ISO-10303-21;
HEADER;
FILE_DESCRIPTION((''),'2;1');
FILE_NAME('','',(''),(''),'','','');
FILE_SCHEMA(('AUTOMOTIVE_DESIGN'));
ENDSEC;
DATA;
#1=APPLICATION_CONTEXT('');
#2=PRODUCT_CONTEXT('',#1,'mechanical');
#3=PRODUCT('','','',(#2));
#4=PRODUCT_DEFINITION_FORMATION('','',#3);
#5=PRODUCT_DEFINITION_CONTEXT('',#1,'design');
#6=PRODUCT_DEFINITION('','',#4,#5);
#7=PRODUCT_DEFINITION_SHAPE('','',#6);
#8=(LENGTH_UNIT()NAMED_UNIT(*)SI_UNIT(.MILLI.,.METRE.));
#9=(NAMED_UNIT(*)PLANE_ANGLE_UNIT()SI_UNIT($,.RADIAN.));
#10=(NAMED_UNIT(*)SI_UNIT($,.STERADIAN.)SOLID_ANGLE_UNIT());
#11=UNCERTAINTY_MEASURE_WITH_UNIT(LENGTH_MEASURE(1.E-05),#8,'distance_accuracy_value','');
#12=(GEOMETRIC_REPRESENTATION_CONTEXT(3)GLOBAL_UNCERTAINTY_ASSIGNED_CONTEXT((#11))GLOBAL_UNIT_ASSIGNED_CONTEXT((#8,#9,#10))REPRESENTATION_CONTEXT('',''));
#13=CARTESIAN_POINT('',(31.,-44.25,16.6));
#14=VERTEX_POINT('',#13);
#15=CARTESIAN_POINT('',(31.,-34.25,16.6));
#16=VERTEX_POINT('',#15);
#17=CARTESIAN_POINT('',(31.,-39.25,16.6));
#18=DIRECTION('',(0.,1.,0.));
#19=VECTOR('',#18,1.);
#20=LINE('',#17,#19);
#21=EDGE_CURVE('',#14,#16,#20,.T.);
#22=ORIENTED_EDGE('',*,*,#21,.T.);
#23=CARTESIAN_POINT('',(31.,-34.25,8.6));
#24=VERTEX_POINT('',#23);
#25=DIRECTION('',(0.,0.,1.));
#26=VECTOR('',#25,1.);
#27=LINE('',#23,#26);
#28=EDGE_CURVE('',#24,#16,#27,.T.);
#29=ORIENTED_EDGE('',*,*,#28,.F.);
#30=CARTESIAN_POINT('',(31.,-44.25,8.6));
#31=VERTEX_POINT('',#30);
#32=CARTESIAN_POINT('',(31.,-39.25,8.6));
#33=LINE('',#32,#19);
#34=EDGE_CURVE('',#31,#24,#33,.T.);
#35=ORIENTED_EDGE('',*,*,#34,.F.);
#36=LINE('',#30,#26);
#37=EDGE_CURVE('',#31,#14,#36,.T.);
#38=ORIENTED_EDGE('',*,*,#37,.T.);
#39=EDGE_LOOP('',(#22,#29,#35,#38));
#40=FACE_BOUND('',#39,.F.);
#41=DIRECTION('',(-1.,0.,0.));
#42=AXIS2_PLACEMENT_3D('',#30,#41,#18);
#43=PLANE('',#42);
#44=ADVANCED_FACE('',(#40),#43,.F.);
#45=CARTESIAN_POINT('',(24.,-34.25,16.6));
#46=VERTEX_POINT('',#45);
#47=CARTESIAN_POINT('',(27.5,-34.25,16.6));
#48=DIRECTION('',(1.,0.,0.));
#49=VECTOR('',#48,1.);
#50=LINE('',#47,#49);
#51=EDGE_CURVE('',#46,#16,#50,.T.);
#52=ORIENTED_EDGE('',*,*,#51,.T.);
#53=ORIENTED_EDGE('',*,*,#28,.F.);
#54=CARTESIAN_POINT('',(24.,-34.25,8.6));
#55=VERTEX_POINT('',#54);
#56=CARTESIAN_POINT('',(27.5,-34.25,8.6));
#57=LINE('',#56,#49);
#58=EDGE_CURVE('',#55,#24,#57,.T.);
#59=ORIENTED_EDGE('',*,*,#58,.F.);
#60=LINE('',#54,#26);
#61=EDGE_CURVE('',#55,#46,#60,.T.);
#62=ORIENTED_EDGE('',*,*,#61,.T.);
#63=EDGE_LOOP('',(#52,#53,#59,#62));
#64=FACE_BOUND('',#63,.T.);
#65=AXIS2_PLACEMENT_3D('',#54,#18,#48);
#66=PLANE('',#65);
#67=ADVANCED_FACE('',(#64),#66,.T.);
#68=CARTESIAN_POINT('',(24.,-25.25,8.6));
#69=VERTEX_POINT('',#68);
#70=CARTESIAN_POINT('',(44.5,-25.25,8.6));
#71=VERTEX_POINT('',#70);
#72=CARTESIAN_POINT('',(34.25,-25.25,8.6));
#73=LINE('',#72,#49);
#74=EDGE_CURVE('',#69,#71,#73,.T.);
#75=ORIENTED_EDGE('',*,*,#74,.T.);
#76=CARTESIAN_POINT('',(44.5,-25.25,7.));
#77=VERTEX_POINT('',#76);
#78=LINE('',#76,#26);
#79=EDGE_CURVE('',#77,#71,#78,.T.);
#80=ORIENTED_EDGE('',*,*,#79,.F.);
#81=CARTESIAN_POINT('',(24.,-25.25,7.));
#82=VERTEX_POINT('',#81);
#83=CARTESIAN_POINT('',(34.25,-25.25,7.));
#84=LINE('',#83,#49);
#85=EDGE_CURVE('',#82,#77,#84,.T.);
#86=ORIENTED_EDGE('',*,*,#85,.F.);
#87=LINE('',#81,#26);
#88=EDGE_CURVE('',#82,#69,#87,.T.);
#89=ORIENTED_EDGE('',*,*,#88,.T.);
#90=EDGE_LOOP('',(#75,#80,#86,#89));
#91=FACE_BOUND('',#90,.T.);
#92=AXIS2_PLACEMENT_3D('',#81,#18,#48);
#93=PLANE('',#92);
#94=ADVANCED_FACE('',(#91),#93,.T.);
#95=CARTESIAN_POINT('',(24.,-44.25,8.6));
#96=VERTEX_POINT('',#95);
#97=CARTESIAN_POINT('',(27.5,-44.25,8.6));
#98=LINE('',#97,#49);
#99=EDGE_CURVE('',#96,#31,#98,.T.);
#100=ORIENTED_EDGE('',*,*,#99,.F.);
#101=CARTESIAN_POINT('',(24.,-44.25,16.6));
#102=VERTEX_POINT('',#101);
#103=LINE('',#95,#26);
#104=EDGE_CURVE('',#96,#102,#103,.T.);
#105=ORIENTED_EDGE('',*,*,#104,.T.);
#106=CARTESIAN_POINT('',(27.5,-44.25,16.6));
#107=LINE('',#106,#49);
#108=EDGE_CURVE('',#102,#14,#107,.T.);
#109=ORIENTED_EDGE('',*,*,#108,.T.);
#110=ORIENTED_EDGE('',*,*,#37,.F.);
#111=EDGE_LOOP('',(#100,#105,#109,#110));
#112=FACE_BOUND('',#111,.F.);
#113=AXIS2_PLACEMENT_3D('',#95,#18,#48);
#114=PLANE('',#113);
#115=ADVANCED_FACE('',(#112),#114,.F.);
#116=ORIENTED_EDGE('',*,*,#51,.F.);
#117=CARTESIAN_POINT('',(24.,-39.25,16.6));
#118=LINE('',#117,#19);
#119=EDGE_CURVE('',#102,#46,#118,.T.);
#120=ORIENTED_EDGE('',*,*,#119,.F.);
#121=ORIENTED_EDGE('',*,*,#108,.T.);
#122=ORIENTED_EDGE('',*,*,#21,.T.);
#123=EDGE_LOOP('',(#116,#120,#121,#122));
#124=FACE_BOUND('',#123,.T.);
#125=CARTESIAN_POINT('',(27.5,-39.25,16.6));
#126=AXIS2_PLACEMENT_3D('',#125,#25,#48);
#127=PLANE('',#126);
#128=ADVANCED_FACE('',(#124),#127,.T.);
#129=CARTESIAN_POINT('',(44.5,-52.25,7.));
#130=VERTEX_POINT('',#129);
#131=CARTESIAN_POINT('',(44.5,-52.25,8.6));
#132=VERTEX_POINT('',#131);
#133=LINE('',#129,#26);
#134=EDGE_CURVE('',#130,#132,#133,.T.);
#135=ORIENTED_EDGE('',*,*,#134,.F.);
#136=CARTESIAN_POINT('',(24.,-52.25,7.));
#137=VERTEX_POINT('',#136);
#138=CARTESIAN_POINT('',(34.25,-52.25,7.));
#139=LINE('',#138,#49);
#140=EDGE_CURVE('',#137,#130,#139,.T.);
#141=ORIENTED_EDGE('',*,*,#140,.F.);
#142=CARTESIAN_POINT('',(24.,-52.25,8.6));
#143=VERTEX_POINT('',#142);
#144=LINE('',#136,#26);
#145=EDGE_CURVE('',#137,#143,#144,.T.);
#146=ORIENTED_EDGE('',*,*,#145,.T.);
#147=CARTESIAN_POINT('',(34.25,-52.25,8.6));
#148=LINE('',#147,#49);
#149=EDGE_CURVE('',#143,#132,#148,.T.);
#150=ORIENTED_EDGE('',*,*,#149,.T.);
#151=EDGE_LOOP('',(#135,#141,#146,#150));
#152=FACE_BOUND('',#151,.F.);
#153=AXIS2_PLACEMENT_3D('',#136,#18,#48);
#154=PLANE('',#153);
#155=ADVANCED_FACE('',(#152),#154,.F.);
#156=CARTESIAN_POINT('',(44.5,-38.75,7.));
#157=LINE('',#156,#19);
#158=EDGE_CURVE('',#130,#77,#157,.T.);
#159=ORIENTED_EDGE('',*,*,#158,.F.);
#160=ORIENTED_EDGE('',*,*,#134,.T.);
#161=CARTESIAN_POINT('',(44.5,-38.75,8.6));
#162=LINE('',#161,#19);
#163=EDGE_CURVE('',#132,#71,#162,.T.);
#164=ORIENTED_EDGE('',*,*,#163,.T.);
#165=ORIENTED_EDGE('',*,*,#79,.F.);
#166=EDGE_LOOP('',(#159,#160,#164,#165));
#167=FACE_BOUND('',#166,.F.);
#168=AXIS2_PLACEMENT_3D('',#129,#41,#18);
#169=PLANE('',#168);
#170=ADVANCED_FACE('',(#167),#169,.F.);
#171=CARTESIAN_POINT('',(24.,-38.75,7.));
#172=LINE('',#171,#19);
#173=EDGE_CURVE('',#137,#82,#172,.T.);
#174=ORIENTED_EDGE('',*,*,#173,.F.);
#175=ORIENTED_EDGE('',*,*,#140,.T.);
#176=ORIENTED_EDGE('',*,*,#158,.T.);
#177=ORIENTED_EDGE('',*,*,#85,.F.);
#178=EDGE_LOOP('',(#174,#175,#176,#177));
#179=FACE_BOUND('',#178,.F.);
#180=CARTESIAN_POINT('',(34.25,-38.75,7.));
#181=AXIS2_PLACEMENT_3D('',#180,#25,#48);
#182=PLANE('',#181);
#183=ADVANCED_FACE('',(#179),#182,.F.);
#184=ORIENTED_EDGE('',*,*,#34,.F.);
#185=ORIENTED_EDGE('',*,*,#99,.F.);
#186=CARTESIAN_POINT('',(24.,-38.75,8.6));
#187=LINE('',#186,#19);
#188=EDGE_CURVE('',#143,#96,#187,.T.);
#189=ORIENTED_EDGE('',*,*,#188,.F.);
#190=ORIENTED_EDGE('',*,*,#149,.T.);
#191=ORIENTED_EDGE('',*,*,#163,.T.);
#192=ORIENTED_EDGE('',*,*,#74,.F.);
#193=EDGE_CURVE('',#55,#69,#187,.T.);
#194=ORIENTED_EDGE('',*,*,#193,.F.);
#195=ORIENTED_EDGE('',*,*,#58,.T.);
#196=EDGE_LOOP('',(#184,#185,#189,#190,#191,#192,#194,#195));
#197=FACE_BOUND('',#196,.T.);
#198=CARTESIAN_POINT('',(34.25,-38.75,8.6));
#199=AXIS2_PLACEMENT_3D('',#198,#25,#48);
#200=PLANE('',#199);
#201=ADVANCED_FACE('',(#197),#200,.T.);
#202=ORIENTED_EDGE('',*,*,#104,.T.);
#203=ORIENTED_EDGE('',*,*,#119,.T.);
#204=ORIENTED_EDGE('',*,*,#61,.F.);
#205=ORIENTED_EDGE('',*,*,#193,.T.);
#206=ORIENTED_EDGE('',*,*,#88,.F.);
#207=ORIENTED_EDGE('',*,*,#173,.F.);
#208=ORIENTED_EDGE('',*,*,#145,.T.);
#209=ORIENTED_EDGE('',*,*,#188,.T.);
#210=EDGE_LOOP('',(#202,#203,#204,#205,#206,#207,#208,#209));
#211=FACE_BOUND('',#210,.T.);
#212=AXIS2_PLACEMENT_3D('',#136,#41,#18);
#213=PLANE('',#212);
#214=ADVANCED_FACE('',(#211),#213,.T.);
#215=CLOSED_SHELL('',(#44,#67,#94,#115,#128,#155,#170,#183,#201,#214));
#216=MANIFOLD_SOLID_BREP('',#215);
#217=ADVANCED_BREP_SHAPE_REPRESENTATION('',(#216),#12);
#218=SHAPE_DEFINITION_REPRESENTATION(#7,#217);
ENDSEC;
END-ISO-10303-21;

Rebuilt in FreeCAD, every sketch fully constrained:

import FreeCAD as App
import Part
import Sketcher
Q = App.Units.Quantity

doc = App.newDocument("Part")
body = doc.addObject("PartDesign::Body", "Body")

sketch1 = doc.addObject("Sketcher::SketchObject", "Sketch")
body.addObject(sketch1)
sketch1.AttachmentSupport = (doc.XY_Plane, [""])
sketch1.MapMode = "FlatFace"
sketch1.AttachmentOffset = App.Placement(App.Vector(0, 0, 1.6), App.Rotation())
sketch1.addGeometry(Part.LineSegment(App.Vector(0, 18, 0), App.Vector(0, 8, 0)), False)
sketch1.addGeometry(Part.LineSegment(App.Vector(0, 8, 0), App.Vector(7, 8, 0)), False)
sketch1.addGeometry(Part.LineSegment(App.Vector(7, 8, 0), App.Vector(7, 18, 0)), False)
sketch1.addGeometry(Part.LineSegment(App.Vector(7, 18, 0), App.Vector(0, 18, 0)), False)
sketch1.addConstraint(Sketcher.Constraint("Coincident", 0, 2, 1, 1))
sketch1.addConstraint(Sketcher.Constraint("Coincident", 1, 2, 2, 1))
sketch1.addConstraint(Sketcher.Constraint("Coincident", 2, 2, 3, 1))
sketch1.addConstraint(Sketcher.Constraint("Coincident", 3, 2, 0, 1))
sketch1.addConstraint(Sketcher.Constraint("Vertical", 0))
sketch1.addConstraint(Sketcher.Constraint("Horizontal", 1))
sketch1.addConstraint(Sketcher.Constraint("Vertical", 2))
sketch1.addConstraint(Sketcher.Constraint("Horizontal", 3))
sketch1.addConstraint(Sketcher.Constraint("PointOnObject", 0, 2, -2))
sketch1.addConstraint(Sketcher.Constraint("DistanceX", 1, 1, 1, 2, Q("7 mm")))
sketch1.addConstraint(Sketcher.Constraint("DistanceY", 0, 2, 0, 1, Q("10 mm")))
sketch1.addConstraint(Sketcher.Constraint("DistanceY", -1, 1, 0, 2, Q("8 mm")))
pad1 = doc.addObject("PartDesign::Pad", "Pad")
body.addObject(pad1)
pad1.Profile = sketch1
pad1.Length = 8
body2 = doc.addObject("PartDesign::Body", "Body001")

sketch2 = doc.addObject("Sketcher::SketchObject", "Sketch001")
body2.addObject(sketch2)
sketch2.AttachmentSupport = (doc.getObject("XY_Plane001"), [""])
sketch2.MapMode = "FlatFace"
sketch2.addGeometry(Part.LineSegment(App.Vector(0, 27, 0), App.Vector(0, 0, 0)), False)
sketch2.addGeometry(Part.LineSegment(App.Vector(0, 0, 0), App.Vector(20, 0, 0)), False)
sketch2.addGeometry(Part.LineSegment(App.Vector(20, 0, 0), App.Vector(20, 27, 0)), False)
sketch2.addGeometry(Part.LineSegment(App.Vector(20, 27, 0), App.Vector(0, 27, 0)), False)
sketch2.addConstraint(Sketcher.Constraint("Coincident", 0, 2, 1, 1))
sketch2.addConstraint(Sketcher.Constraint("Coincident", 1, 2, 2, 1))
sketch2.addConstraint(Sketcher.Constraint("Coincident", 2, 2, 3, 1))
sketch2.addConstraint(Sketcher.Constraint("Coincident", 3, 2, 0, 1))
sketch2.addConstraint(Sketcher.Constraint("Vertical", 0))
sketch2.addConstraint(Sketcher.Constraint("Horizontal", 1))
sketch2.addConstraint(Sketcher.Constraint("Vertical", 2))
sketch2.addConstraint(Sketcher.Constraint("Horizontal", 3))
sketch2.addConstraint(Sketcher.Constraint("Coincident", 0, 2, -1, 1))
sketch2.addConstraint(Sketcher.Constraint("DistanceY", 0, 2, 0, 1, Q("27 mm")))
sketch2.addConstraint(Sketcher.Constraint("DistanceX", 1, 1, 1, 2, Q("20.5 mm")))
pad2 = doc.addObject("PartDesign::Pad", "Pad001")
body2.addObject(pad2)
pad2.Profile = sketch2
pad2.Length = 1.6
doc.recompute()

boolean = doc.addObject("PartDesign::Boolean", "Boolean")
body2.addObject(boolean)
boolean.Type = "Fuse"
boolean.addObjects([body])
body3 = doc.addObject("PartDesign::Body", "Body002")
doc.recompute()

body2.Placement = App.Placement(App.Vector(24, -52.25, 7), App.Rotation(App.Vector(0, 0, 1), 0))
boolean2 = doc.addObject("PartDesign::Boolean", "Boolean001")
body3.addObject(boolean2)
boolean2.Type = "Fuse"
boolean2.addObjects([body2])

doc.recompute()
